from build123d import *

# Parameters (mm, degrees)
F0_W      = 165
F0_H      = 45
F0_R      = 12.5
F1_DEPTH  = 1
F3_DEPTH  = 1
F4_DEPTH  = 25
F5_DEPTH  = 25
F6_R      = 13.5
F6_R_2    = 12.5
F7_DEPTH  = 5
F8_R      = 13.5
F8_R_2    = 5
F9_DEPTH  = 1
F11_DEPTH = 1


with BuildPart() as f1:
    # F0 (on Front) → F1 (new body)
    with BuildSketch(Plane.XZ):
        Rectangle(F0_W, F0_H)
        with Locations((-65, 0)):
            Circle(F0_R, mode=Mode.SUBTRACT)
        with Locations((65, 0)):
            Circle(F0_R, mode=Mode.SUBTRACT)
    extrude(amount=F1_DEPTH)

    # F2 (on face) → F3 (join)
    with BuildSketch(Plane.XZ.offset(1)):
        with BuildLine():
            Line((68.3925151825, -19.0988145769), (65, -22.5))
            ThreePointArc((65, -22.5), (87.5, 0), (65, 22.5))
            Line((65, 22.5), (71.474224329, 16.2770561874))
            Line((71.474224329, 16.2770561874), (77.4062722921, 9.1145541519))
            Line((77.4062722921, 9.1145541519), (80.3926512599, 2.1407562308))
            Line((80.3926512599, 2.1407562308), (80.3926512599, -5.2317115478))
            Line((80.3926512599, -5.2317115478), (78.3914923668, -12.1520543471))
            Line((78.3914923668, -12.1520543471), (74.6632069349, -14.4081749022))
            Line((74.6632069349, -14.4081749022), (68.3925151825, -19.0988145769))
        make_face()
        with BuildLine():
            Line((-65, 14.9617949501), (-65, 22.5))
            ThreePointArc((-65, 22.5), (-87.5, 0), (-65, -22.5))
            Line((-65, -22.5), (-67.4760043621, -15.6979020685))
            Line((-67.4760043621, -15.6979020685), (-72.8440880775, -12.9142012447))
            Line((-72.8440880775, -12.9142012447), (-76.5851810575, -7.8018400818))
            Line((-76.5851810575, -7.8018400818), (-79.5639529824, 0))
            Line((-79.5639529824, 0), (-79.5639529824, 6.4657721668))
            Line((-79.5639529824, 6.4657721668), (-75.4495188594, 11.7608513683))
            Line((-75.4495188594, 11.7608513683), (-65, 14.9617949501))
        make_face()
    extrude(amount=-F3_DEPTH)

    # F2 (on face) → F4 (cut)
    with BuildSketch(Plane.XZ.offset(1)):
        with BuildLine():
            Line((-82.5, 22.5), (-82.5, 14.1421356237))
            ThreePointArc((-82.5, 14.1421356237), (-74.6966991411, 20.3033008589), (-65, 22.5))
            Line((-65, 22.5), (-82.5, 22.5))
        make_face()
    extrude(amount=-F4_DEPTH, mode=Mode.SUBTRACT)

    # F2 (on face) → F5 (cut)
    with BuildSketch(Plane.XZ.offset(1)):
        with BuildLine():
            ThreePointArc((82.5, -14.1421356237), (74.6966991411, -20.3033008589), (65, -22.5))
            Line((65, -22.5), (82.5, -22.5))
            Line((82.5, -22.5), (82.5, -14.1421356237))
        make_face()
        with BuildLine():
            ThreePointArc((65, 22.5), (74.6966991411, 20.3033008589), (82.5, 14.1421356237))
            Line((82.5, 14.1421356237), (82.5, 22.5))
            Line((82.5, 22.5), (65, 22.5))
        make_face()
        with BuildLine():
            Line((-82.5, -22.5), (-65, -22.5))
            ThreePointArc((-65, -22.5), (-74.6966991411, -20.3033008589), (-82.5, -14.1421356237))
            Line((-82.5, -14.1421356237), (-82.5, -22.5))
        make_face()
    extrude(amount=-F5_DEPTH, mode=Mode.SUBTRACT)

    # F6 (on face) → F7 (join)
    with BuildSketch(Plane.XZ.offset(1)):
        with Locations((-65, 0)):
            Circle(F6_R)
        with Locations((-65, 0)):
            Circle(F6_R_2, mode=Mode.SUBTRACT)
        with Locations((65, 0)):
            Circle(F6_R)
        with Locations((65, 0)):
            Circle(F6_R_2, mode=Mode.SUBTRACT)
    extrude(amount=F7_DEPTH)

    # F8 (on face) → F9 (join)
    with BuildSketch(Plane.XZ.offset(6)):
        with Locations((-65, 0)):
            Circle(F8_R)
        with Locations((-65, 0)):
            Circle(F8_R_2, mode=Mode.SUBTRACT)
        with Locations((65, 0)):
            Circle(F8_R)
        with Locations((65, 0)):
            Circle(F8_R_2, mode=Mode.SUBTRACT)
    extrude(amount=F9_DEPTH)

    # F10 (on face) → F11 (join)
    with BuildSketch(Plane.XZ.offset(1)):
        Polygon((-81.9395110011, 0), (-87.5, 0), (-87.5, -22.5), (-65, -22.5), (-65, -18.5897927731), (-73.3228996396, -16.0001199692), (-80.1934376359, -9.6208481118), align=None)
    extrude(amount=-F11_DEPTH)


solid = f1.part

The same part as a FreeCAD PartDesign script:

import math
import FreeCAD as App
import Part
import Sketcher
Q = App.Units.Quantity


def add_polygon(sketch, points):
    """Adds a closed chain of lines whose ends are joined by coincident constraints."""
    first, n = sketch.GeometryCount, len(points)
    for a, b in zip(points, points[1:] + points[:1]):
        sketch.addGeometry(Part.LineSegment(App.Vector(*a, 0), App.Vector(*b, 0)), False)
    for i in range(n):
        sketch.addConstraint(Sketcher.Constraint("Coincident", first + i, 2, first + (i + 1) % n, 1))

doc = App.newDocument("Part")
body = doc.addObject("PartDesign::Body", "Body")

# Sketch on XZ plane
sketch1 = doc.addObject("Sketcher::SketchObject", "Sketch")
body.addObject(sketch1)
sketch1.AttachmentSupport = (doc.XZ_Plane, [""])
sketch1.MapMode = "FlatFace"
add_polygon(sketch1, [(-82, 22), (-82, -22), (82, -22), (82, 22)])  # lines 0-3
sketch1.addGeometry(Part.Circle(App.Vector(-65, 0, 0), App.Vector(0, 0, 1), 12), False)  # 4
sketch1.addGeometry(Part.Circle(App.Vector(65, 0, 0), App.Vector(0, 0, 1), 12), False)  # 5
sketch1.addConstraint(Sketcher.Constraint("Vertical", 0))
sketch1.addConstraint(Sketcher.Constraint("Horizontal", 1))
sketch1.addConstraint(Sketcher.Constraint("Vertical", 2))
sketch1.addConstraint(Sketcher.Constraint("Horizontal", 3))
sketch1.addConstraint(Sketcher.Constraint("Equal", 4, 5))
sketch1.addConstraint(Sketcher.Constraint("Symmetric", 4, 3, 5, 3, -1, 1))
sketch1.addConstraint(Sketcher.Constraint("Symmetric", 0, 2, 2, 2, -1, 1))
sketch1.addConstraint(Sketcher.Constraint("PointOnObject", 4, 3, -1))
sketch1.addConstraint(Sketcher.Constraint("Diameter", 4, Q("25 mm")))
sketch1.addConstraint(Sketcher.Constraint("DistanceX", 1, 1, 1, 2, Q("165 mm")))
sketch1.addConstraint(Sketcher.Constraint("DistanceY", 0, 2, 0, 1, Q("45 mm")))
sketch1.addConstraint(Sketcher.Constraint("DistanceX", 4, 3, -1, 1, Q("65 mm")))
pad1 = doc.addObject("PartDesign::Pad", "Pad")
body.addObject(pad1)
pad1.Profile = sketch1
pad1.Length = 1

# Sketch on XZ plane
sketch2 = doc.addObject("Sketcher::SketchObject", "Sketch001")
body.addObject(sketch2)
sketch2.AttachmentSupport = (doc.XZ_Plane, [""])
sketch2.MapMode = "FlatFace"
sketch2.AttachmentOffset = App.Placement(App.Vector(0, 0, 1), App.Rotation())
sketch2.addGeometry(Part.LineSegment(App.Vector(68.4, -19.1, 0), App.Vector(65, -22.5, 0)), False)
sketch2.addGeometry(Part.ArcOfCircle(Part.Circle(App.Vector(65, 0, 0), App.Vector(0, 0, 1), 22.5), math.radians(-90), math.radians(90)), False)
sketch2.addGeometry(Part.LineSegment(App.Vector(65, 22.5, 0), App.Vector(71.5, 16.3, 0)), False)
sketch2.addGeometry(Part.LineSegment(App.Vector(71.5, 16.3, 0), App.Vector(77.4, 9.1, 0)), False)
sketch2.addGeometry(Part.LineSegment(App.Vector(77.4, 9.1, 0), App.Vector(80.4, 2.1, 0)), False)
sketch2.addGeometry(Part.LineSegment(App.Vector(80.4, 2.1, 0), App.Vector(80.4, -5.2, 0)), False)
sketch2.addGeometry(Part.LineSegment(App.Vector(80.4, -5.2, 0), App.Vector(78.4, -12.2, 0)), False)
sketch2.addGeometry(Part.LineSegment(App.Vector(78.4, -12.2, 0), App.Vector(74.7, -14.4, 0)), False)
sketch2.addGeometry(Part.LineSegment(App.Vector(74.7, -14.4, 0), App.Vector(68.4, -19.1, 0)), False)
sketch2.addGeometry(Part.LineSegment(App.Vector(-65, 15, 0), App.Vector(-65, 22.5, 0)), False)
sketch2.addGeometry(Part.ArcOfCircle(Part.Circle(App.Vector(-65, 0, 0), App.Vector(0, 0, 1), 22.5), math.radians(90), math.radians(270)), False)
sketch2.addGeometry(Part.LineSegment(App.Vector(-65, -22.5, 0), App.Vector(-67.5, -15.7, 0)), False)
sketch2.addGeometry(Part.LineSegment(App.Vector(-67.5, -15.7, 0), App.Vector(-72.8, -12.9, 0)), False)
sketch2.addGeometry(Part.LineSegment(App.Vector(-72.8, -12.9, 0), App.Vector(-76.6, -7.8, 0)), False)
sketch2.addGeometry(Part.LineSegment(App.Vector(-76.6, -7.8, 0), App.Vector(-79.6, 0, 0)), False)
sketch2.addGeometry(Part.LineSegment(App.Vector(-79.6, 0, 0), App.Vector(-79.6, 6.5, 0)), False)
sketch2.addGeometry(Part.LineSegment(App.Vector(-79.6, 6.5, 0), App.Vector(-75.4, 11.8, 0)), False)
sketch2.addGeometry(Part.LineSegment(App.Vector(-75.4, 11.8, 0), App.Vector(-65, 15, 0)), False)
sketch2.addConstraint(Sketcher.Constraint("Coincident", 0, 2, 1, 1))
sketch2.addConstraint(Sketcher.Constraint("Coincident", 1, 2, 2, 1))
sketch2.addConstraint(Sketcher.Constraint("Coincident", 2, 2, 3, 1))
sketch2.addConstraint(Sketcher.Constraint("Coincident", 3, 2, 4, 1))
sketch2.addConstraint(Sketcher.Constraint("Coincident", 4, 2, 5, 1))
sketch2.addConstraint(Sketcher.Constraint("Coincident", 5, 2, 6, 1))
sketch2.addConstraint(Sketcher.Constraint("Coincident", 6, 2, 7, 1))
sketch2.addConstraint(Sketcher.Constraint("Coincident", 7, 2, 8, 1))
sketch2.addConstraint(Sketcher.Constraint("Coincident", 8, 2, 0, 1))
sketch2.addConstraint(Sketcher.Constraint("Coincident", 9, 2, 10, 1))
sketch2.addConstraint(Sketcher.Constraint("Coincident", 10, 2, 11, 1))
sketch2.addConstraint(Sketcher.Constraint("Coincident", 11, 2, 12, 1))
sketch2.addConstraint(Sketcher.Constraint("Coincident", 12, 2, 13, 1))
sketch2.addConstraint(Sketcher.Constraint("Coincident", 13, 2, 14, 1))
sketch2.addConstraint(Sketcher.Constraint("Coincident", 14, 2, 15, 1))
sketch2.addConstraint(Sketcher.Constraint("Coincident", 15, 2, 16, 1))
sketch2.addConstraint(Sketcher.Constraint("Coincident", 16, 2, 17, 1))
sketch2.addConstraint(Sketcher.Constraint("Coincident", 17, 2, 9, 1))
sketch2.addConstraint(Sketcher.Constraint("Vertical", 5))
sketch2.addConstraint(Sketcher.Constraint("Vertical", 9))
sketch2.addConstraint(Sketcher.Constraint("Vertical", 15))
sketch2.addConstraint(Sketcher.Constraint("Equal", 1, 10))
sketch2.addConstraint(Sketcher.Constraint("Symmetric", 1, 3, 10, 3, -1, 1))
sketch2.addConstraint(Sketcher.Constraint("Symmetric", 1, 2, 9, 2, -2))
sketch2.addConstraint(Sketcher.Constraint("PointOnObject", 14, 2, -1))
sketch2.addConstraint(Sketcher.Constraint("Vertical", 1, 3, 0, 2))
sketch2.addConstraint(Sketcher.Constraint("Vertical", 0, 2, 1, 2))
sketch2.addConstraint(Sketcher.Constraint("Vertical", 9, 2, 10, 2))
sketch2.addConstraint(Sketcher.Constraint("Radius", 1, Q("22.5 mm")))
sketch2.addConstraint(Sketcher.Constraint("DistanceX", -1, 1, 1, 3, Q("65 mm")))
sketch2.addConstraint(Sketcher.Constraint("Distance", 16, Q("6.705701 mm")))
sketch2.addConstraint(Sketcher.Constraint("DistanceY", 12, 2, -1, 1, Q("12.914201 mm")))
sketch2.addConstraint(Sketcher.Constraint("DistanceY", 4, 2, 2, 2, Q("14.1363 mm")))
sketch2.addConstraint(Sketcher.Constraint("DistanceY", 11, 2, 12, 2, Q("2.783701 mm")))
sketch2.addConstraint(Sketcher.Constraint("Distance", 2, Q("8.980012 mm")))
sketch2.addConstraint(Sketcher.Constraint("Distance", 17, Q("10.928792 mm")))
sketch2.addConstraint(Sketcher.Constraint("DistanceY", 5, 2, 5, 1, Q("7.372468 mm")))
sketch2.addConstraint(Sketcher.Constraint("DistanceY", 9, 1, 9, 2, Q("7.538205 mm")))
sketch2.addConstraint(Sketcher.Constraint("DistanceY", 15, 1, 15, 2, Q("6.465772 mm")))
sketch2.addConstraint(Sketcher.Constraint("DistanceX", -1, 1, 4, 2, Q("80.392651 mm")))
sketch2.addConstraint(Sketcher.Constraint("DistanceY", 5, 2, -1, 1, Q("5.231712 mm")))
sketch2.addConstraint(Sketcher.Constraint("DistanceX", 12, 2, -1, 1, Q("72.844088 mm")))
sketch2.addConstraint(Sketcher.Constraint("DistanceX", 13, 2, -1, 1, Q("76.585181 mm")))
sketch2.addConstraint(Sketcher.Constraint("DistanceY", 13, 2, -1, 1, Q("7.80184 mm")))
sketch2.addConstraint(Sketcher.Constraint("DistanceX", 16, 2, -1, 1, Q("75.449519 mm")))
sketch2.addConstraint(Sketcher.Constraint("DistanceX", 3, 2, 4, 2, Q("2.986379 mm")))
sketch2.addConstraint(Sketcher.Constraint("DistanceX", 6, 2, 5, 2, Q("2.001159 mm")))
sketch2.addConstraint(Sketcher.Constraint("DistanceY", 6, 2, 4, 2, Q("14.292811 mm")))
sketch2.addConstraint(Sketcher.Constraint("DistanceY", 6, 2, 3, 2, Q("21.266608 mm")))
sketch2.addConstraint(Sketcher.Constraint("DistanceY", 7, 2, 6, 2, Q("2.256121 mm")))
sketch2.addConstraint(Sketcher.Constraint("DistanceX", 8, 2, 7, 2, Q("6.270692 mm")))
sketch2.addConstraint(Sketcher.Constraint("DistanceY", 8, 2, 7, 2, Q("4.69064 mm")))
sketch2.addConstraint(Sketcher.Constraint("DistanceX", 14, 2, 11, 2, Q("12.087949 mm")))
sketch2.addConstraint(Sketcher.Constraint("Distance", 0, Q("4.803876 mm")))
pad2 = doc.addObject("PartDesign::Pad", "Pad001")
body.addObject(pad2)
pad2.Profile = sketch2
pad2.Length = 1
pad2.Reversed = True

# Sketch on XZ plane
sketch3 = doc.addObject("Sketcher::SketchObject", "Sketch002")
body.addObject(sketch3)
sketch3.AttachmentSupport = (doc.XZ_Plane, [""])
sketch3.MapMode = "FlatFace"
sketch3.AttachmentOffset = App.Placement(App.Vector(0, 0, 1), App.Rotation())
sketch3.addGeometry(Part.LineSegment(App.Vector(-82, 22, 0), App.Vector(-82, 14, 0)), False)
sketch3.addGeometry(Part.ArcOfCircle(Part.Circle(App.Vector(-65, 0, 0), App.Vector(0, 0, 1), 22), math.radians(90), math.radians(141)), False)
sketch3.addGeometry(Part.LineSegment(App.Vector(-65, 22, 0), App.Vector(-82, 22, 0)), False)
sketch3.addConstraint(Sketcher.Constraint("Coincident", 0, 2, 1, 2))
sketch3.addConstraint(Sketcher.Constraint("Tangent", 1, 1, 2, 1))
sketch3.addConstraint(Sketcher.Constraint("Coincident", 2, 2, 0, 1))
sketch3.addConstraint(Sketcher.Constraint("Vertical", 0))
sketch3.addConstraint(Sketcher.Constraint("Horizontal", 2))
sketch3.addConstraint(Sketcher.Constraint("PointOnObject", 1, 3, -1))
sketch3.addConstraint(Sketcher.Constraint("Radius", 1, Q("22.5 mm")))
sketch3.addConstraint(Sketcher.Constraint("DistanceX", 2, 2, 2, 1, Q("17.5 mm")))
sketch3.addConstraint(Sketcher.Constraint("DistanceX", 1, 3, -1, 1, Q("65 mm")))
pocket1 = doc.addObject("PartDesign::Pocket", "Pocket")
body.addObject(pocket1)
pocket1.Profile = sketch3
pocket1.Length = 25

# Sketch on XZ plane
sketch4 = doc.addObject("Sketcher::SketchObject", "Sketch003")
body.addObject(sketch4)
sketch4.AttachmentSupport = (doc.XZ_Plane, [""])
sketch4.MapMode = "FlatFace"
sketch4.AttachmentOffset = App.Placement(App.Vector(0, 0, 1), App.Rotation())
sketch4.addGeometry(Part.ArcOfCircle(Part.Circle(App.Vector(65, 0, 0), App.Vector(0, 0, 1), 22), math.radians(-90), math.radians(-39)), False)
sketch4.addGeometry(Part.LineSegment(App.Vector(65, -22, 0), App.Vector(82, -22, 0)), False)
sketch4.addGeometry(Part.LineSegment(App.Vector(82, -22, 0), App.Vector(82, -14, 0)), False)
sketch4.addGeometry(Part.ArcOfCircle(Part.Circle(App.Vector(65, 0, 0), App.Vector(0, 0, 1), 22), math.radians(39), math.radians(90)), False)
sketch4.addGeometry(Part.LineSegment(App.Vector(82, 14, 0), App.Vector(82, 22, 0)), False)
sketch4.addGeometry(Part.LineSegment(App.Vector(82, 22, 0), App.Vector(65, 22, 0)), False)
sketch4.addGeometry(Part.LineSegment(App.Vector(-82, -22, 0), App.Vector(-65, -22, 0)), False)
sketch4.addGeometry(Part.ArcOfCircle(Part.Circle(App.Vector(-65, 0, 0), App.Vector(0, 0, 1), 22), math.radians(-141), math.radians(-90)), False)
sketch4.addGeometry(Part.LineSegment(App.Vector(-82, -14, 0), App.Vector(-82, -22, 0)), False)
sketch4.addConstraint(Sketcher.Constraint("Tangent", 0, 1, 1, 1))
sketch4.addConstraint(Sketcher.Constraint("Coincident", 1, 2, 2, 1))
sketch4.addConstraint(Sketcher.Constraint("Coincident", 2, 2, 0, 2))
sketch4.addConstraint(Sketcher.Constraint("Coincident", 3, 1, 4, 1))
sketch4.addConstraint(Sketcher.Constraint("Coincident", 4, 2, 5, 1))
sketch4.addConstraint(Sketcher.Constraint("Tangent", 5, 2, 3, 2))
sketch4.addConstraint(Sketcher.Constraint("Tangent", 6, 2, 7, 2))
sketch4.addConstraint(Sketcher.Constraint("Coincident", 7, 1, 8, 1))
sketch4.addConstraint(Sketcher.Constraint("Coincident", 8, 2, 6, 1))
sketch4.addConstraint(Sketcher.Constraint("Horizontal", 1))
sketch4.addConstraint(Sketcher.Constraint("Vertical", 2))
sketch4.addConstraint(Sketcher.Constraint("Vertical", 4))
sketch4.addConstraint(Sketcher.Constraint("Horizontal", 5))
sketch4.addConstraint(Sketcher.Constraint("Horizontal", 6))
sketch4.addConstraint(Sketcher.Constraint("Vertical", 8))
sketch4.addConstraint(Sketcher.Constraint("Coincident", 3, 3, 0, 3))
sketch4.addConstraint(Sketcher.Constraint("Equal", 0, 3))
sketch4.addConstraint(Sketcher.Constraint("Equal", 3, 7))
sketch4.addConstraint(Sketcher.Constraint("Symmetric", 0, 3, 7, 3, -1, 1))
sketch4.addConstraint(Sketcher.Constraint("Symmetric", 2, 2, 7, 1, -2))
sketch4.addConstraint(Sketcher.Constraint("Vertical", 2, 2, 3, 1))
sketch4.addConstraint(Sketcher.Constraint("Radius", 0, Q("22.5 mm")))
sketch4.addConstraint(Sketcher.Constraint("DistanceX", 1, 1, 1, 2, Q("17.5 mm")))
sketch4.addConstraint(Sketcher.Constraint("DistanceX", -1, 1, 0, 3, Q("65 mm")))
pocket2 = doc.addObject("PartDesign::Pocket", "Pocket001")
body.addObject(pocket2)
pocket2.Profile = sketch4
pocket2.Length = 25

# Sketch on XZ plane
sketch5 = doc.addObject("Sketcher::SketchObject", "Sketch004")
body.addObject(sketch5)
sketch5.AttachmentSupport = (doc.XZ_Plane, [""])
sketch5.MapMode = "FlatFace"
sketch5.AttachmentOffset = App.Placement(App.Vector(0, 0, 1), App.Rotation())
sketch5.addGeometry(Part.Circle(App.Vector(-65, 0, 0), App.Vector(0, 0, 1), 14), False)
sketch5.addGeometry(Part.Circle(App.Vector(-65, 0, 0), App.Vector(0, 0, 1), 12), False)
sketch5.addGeometry(Part.Circle(App.Vector(65, 0, 0), App.Vector(0, 0, 1), 14), False)
sketch5.addGeometry(Part.Circle(App.Vector(65, 0, 0), App.Vector(0, 0, 1), 12), False)
sketch5.addConstraint(Sketcher.Constraint("Coincident", 1, 3, 0, 3))
sketch5.addConstraint(Sketcher.Constraint("Coincident", 3, 3, 2, 3))
sketch5.addConstraint(Sketcher.Constraint("Equal", 0, 2))
sketch5.addConstraint(Sketcher.Constraint("Equal", 1, 3))
sketch5.addConstraint(Sketcher.Constraint("Symmetric", 0, 3, 2, 3, -1, 1))
sketch5.addConstraint(Sketcher.Constraint("PointOnObject", 0, 3, -1))
sketch5.addConstraint(Sketcher.Constraint("Diameter", 0, Q("27 mm")))
sketch5.addConstraint(Sketcher.Constraint("Diameter", 1, Q("25 mm")))
sketch5.addConstraint(Sketcher.Constraint("DistanceX", 0, 3, -1, 1, Q("65 mm")))
pad3 = doc.addObject("PartDesign::Pad", "Pad002")
body.addObject(pad3)
pad3.Profile = sketch5
pad3.Length = 5

# Sketch on XZ plane
sketch6 = doc.addObject("Sketcher::SketchObject", "Sketch005")
body.addObject(sketch6)
sketch6.AttachmentSupport = (doc.XZ_Plane, [""])
sketch6.MapMode = "FlatFace"
sketch6.AttachmentOffset = App.Placement(App.Vector(0, 0, 6), App.Rotation())
sketch6.addGeometry(Part.Circle(App.Vector(-65, 0, 0), App.Vector(0, 0, 1), 14), False)
sketch6.addGeometry(Part.Circle(App.Vector(-65, 0, 0), App.Vector(0, 0, 1), 5), False)
sketch6.addGeometry(Part.Circle(App.Vector(65, 0, 0), App.Vector(0, 0, 1), 14), False)
sketch6.addGeometry(Part.Circle(App.Vector(65, 0, 0), App.Vector(0, 0, 1), 5), False)
sketch6.addConstraint(Sketcher.Constraint("Coincident", 1, 3, 0, 3))
sketch6.addConstraint(Sketcher.Constraint("Coincident", 3, 3, 2, 3))
sketch6.addConstraint(Sketcher.Constraint("Equal", 0, 2))
sketch6.addConstraint(Sketcher.Constraint("Equal", 1, 3))
sketch6.addConstraint(Sketcher.Constraint("Symmetric", 0, 3, 2, 3, -1, 1))
sketch6.addConstraint(Sketcher.Constraint("PointOnObject", 0, 3, -1))
sketch6.addConstraint(Sketcher.Constraint("Diameter", 0, Q("27 mm")))
sketch6.addConstraint(Sketcher.Constraint("Diameter", 1, Q("10 mm")))
sketch6.addConstraint(Sketcher.Constraint("DistanceX", 0, 3, -1, 1, Q("65 mm")))
pad4 = doc.addObject("PartDesign::Pad", "Pad003")
body.addObject(pad4)
pad4.Profile = sketch6
pad4.Length = 1

# Sketch on XZ plane
sketch7 = doc.addObject("Sketcher::SketchObject", "Sketch006")
body.addObject(sketch7)
sketch7.AttachmentSupport = (doc.XZ_Plane, [""])
sketch7.MapMode = "FlatFace"
sketch7.AttachmentOffset = App.Placement(App.Vector(0, 0, 1), App.Rotation())
add_polygon(sketch7, [(-81.9, 0), (-87.5, 0), (-87.5, -22.5), (-65, -22.5), (-65, -18.6), (-73.3, -16), (-80.2, -9.6)])  # lines 0-6
sketch7.addConstraint(Sketcher.Constraint("Horizontal", 0))
sketch7.addConstraint(Sketcher.Constraint("Vertical", 1))
sketch7.addConstraint(Sketcher.Constraint("Horizontal", 2))
sketch7.addConstraint(Sketcher.Constraint("Vertical", 3))
sketch7.addConstraint(Sketcher.Constraint("PointOnObject", 0, 2, -1))
sketch7.addConstraint(Sketcher.Constraint("Equal", 2, 1))
sketch7.addConstraint(Sketcher.Constraint("DistanceX", 2, 1, 2, 2, Q("22.5 mm")))
sketch7.addConstraint(Sketcher.Constraint("DistanceX", 2, 2, -1, 1, Q("65 mm")))
sketch7.addConstraint(Sketcher.Constraint("DistanceX", 0, 2, 0, 1, Q("5.560489 mm")))
sketch7.addConstraint(Sketcher.Constraint("DistanceX", 4, 2, -1, 1, Q("73.3229 mm")))
sketch7.addConstraint(Sketcher.Constraint("Distance", 5, Q("9.375468 mm")))
sketch7.addConstraint(Sketcher.Constraint("Distance", 6, Q("9.778011 mm")))
sketch7.addConstraint(Sketcher.Constraint("DistanceY", 3, 1, 3, 2, Q("3.910207 mm")))
sketch7.addConstraint(Sketcher.Constraint("DistanceY", 4, 2, -1, 1, Q("16.00012 mm")))
pad5 = doc.addObject("PartDesign::Pad", "Pad004")
body.addObject(pad5)
pad5.Profile = sketch7
pad5.Length = 1
pad5.Reversed = True

doc.recompute()
